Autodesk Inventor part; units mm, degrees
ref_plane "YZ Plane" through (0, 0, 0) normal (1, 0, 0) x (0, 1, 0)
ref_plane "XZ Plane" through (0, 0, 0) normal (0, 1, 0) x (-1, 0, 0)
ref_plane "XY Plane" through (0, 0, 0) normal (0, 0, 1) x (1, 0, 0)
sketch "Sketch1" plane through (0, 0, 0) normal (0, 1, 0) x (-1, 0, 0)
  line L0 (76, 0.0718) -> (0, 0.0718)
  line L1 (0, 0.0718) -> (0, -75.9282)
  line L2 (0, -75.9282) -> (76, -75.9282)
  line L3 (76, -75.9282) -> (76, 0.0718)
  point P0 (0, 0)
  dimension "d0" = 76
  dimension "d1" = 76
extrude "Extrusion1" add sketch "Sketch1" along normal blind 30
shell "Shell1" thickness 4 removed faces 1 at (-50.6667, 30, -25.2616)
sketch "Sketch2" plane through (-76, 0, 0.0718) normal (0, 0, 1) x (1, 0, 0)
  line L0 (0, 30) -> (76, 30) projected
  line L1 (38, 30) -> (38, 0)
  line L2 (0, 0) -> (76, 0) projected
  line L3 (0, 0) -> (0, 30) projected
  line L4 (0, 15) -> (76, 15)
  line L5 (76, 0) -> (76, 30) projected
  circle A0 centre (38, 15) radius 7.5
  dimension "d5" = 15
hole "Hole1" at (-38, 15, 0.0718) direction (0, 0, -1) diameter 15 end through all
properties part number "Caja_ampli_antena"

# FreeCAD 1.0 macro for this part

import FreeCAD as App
import Part
import Sketcher

V = App.Vector
Q = App.Units.Quantity


def faces_at(feature, points):
    """Names of the faces that lie closest to the given points."""
    faces = feature.Shape.Faces
    near = lambda p: min(range(len(faces)), key=lambda i: faces[i].distToShape(Part.Vertex(*p))[0])
    return sorted({f"Face{near(p) + 1}" for p in points})


def add_polygon(sketch, points):
    """Adds a closed chain of lines whose ends are joined by coincident constraints."""
    first, n = sketch.GeometryCount, len(points)
    for a, b in zip(points, points[1:] + points[:1]):
        sketch.addGeometry(Part.LineSegment(App.Vector(*a, 0), App.Vector(*b, 0)), False)
    for i in range(n):
        sketch.addConstraint(Sketcher.Constraint("Coincident", first + i, 2, first + (i + 1) % n, 1))

doc = App.newDocument("Part")
body = doc.addObject("PartDesign::Body", "Body")

# Sketch on XZ plane
sketch1 = body.newObject("Sketcher::SketchObject", "Sketch")
sketch1.AttachmentSupport = (doc.getObject("XZ_Plane"), [""])
sketch1.MapMode = "FlatFace"
add_polygon(sketch1, [(-76, -76), (-76, 0), (0, 0), (0, -76)])  # lines 0-3
sketch1.addConstraint(Sketcher.Constraint("Vertical", 0))
sketch1.addConstraint(Sketcher.Constraint("Horizontal", 1))
sketch1.addConstraint(Sketcher.Constraint("Vertical", 2))
sketch1.addConstraint(Sketcher.Constraint("Horizontal", 3))
sketch1.addConstraint(Sketcher.Constraint("PointOnObject", 1, 2, -2))
sketch1.addConstraint(Sketcher.Constraint("Equal", 3, 0))
sketch1.addConstraint(Sketcher.Constraint("DistanceX", 1, 1, 1, 2, Q("76 mm")))
sketch1.addConstraint(Sketcher.Constraint("DistanceY", -1, 1, 0, 2, Q("0.0718 mm")))
pad1 = body.newObject("PartDesign::Pad", "Pad")
pad1.Profile = sketch1
pad1.Length = 30
pad1.Reversed = True
doc.recompute()

thickness = body.newObject("PartDesign::Thickness", "Thickness")
thickness.Base = (pad1, faces_at(pad1, [(-50.667, 30, -25.262)]))
thickness.Value = 4
thickness.Reversed = True
thickness.Join = "Intersection"

# Sketch on XY plane
sketch2 = body.newObject("Sketcher::SketchObject", "Sketch001")
sketch2.AttachmentSupport = (doc.getObject("XY_Plane"), [""])
sketch2.MapMode = "FlatFace"
sketch2.AttachmentOffset = App.Placement(V(0, 0, 0.0718), App.Rotation())
sketch2.addGeometry(Part.Circle(V(-38, 15, 0), V(0, 0, 1), 8), False)
sketch2.addConstraint(Sketcher.Constraint("Diameter", 0, Q("15 mm")))
sketch2.addConstraint(Sketcher.Constraint("DistanceX", 0, 3, -1, 1, Q("38 mm")))
sketch2.addConstraint(Sketcher.Constraint("DistanceY", -1, 1, 0, 3, Q("15 mm")))
doc.recompute()
hole = body.newObject("PartDesign::Hole", "Hole")
hole.Profile = sketch2
hole.ThreadType = "None"
hole.Diameter = 15
hole.DepthType = "ThroughAll"

doc.recompute()
